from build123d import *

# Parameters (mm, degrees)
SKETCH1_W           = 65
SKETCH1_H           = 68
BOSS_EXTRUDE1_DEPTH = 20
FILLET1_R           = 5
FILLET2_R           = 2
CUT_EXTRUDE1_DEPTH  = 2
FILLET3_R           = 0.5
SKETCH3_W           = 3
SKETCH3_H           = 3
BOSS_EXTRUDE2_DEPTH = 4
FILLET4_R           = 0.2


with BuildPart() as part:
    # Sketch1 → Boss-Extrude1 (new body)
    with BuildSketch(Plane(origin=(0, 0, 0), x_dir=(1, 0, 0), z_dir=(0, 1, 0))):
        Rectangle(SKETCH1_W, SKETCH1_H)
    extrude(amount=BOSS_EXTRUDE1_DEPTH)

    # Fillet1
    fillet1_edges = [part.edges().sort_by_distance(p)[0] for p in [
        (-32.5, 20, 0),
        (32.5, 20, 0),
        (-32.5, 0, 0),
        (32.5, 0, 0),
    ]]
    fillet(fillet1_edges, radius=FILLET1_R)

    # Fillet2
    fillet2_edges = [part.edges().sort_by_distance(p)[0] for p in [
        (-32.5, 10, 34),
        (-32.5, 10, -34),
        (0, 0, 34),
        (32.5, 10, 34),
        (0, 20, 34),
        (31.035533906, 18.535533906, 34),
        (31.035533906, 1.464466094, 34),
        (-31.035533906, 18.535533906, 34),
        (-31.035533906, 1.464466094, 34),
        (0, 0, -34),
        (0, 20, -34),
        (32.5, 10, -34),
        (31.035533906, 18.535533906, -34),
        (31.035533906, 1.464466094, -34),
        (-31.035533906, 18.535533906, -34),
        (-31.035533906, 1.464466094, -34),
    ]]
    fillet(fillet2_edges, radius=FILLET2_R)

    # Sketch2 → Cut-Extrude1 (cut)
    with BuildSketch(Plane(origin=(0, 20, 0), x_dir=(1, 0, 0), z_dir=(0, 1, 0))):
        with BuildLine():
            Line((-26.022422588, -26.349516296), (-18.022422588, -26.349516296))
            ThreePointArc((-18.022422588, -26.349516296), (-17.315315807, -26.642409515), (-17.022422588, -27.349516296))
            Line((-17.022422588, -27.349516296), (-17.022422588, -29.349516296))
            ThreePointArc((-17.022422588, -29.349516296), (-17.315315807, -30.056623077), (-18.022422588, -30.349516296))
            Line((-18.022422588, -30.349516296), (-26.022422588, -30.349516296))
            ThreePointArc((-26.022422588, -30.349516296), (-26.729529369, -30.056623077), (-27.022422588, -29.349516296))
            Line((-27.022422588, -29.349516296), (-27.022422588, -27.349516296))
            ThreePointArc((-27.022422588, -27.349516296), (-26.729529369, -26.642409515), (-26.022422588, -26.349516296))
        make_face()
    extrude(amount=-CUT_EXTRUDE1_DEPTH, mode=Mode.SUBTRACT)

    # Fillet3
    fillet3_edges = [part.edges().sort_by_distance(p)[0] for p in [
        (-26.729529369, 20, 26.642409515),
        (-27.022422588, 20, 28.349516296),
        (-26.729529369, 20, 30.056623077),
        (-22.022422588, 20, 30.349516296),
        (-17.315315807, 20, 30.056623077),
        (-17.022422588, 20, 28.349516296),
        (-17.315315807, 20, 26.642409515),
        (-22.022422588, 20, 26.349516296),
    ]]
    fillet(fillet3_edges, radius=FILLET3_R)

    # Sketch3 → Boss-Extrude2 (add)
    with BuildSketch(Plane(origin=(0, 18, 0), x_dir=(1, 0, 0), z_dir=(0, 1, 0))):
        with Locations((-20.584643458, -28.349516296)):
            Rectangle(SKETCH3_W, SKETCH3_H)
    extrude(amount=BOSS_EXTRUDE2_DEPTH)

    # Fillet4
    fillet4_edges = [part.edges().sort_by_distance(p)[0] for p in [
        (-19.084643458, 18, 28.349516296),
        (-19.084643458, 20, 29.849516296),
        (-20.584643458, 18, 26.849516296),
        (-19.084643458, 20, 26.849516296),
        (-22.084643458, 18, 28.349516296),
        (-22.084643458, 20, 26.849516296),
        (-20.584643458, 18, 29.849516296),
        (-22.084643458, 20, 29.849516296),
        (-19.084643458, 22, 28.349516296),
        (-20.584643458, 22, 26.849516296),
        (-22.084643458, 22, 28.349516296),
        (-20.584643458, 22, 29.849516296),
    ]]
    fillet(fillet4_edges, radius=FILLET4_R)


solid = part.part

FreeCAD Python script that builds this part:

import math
import FreeCAD as App
import Part
import Sketcher

V = App.Vector


def edges_at(feature, points):
    """Names of the edges that pass closest to the given points."""
    edges = feature.Shape.Edges
    near = lambda p: min(range(len(edges)), key=lambda i: edges[i].distToShape(Part.Vertex(*p))[0])
    return sorted({f"Edge{near(p) + 1}" for p in points})

doc = App.newDocument("Part")
body = doc.addObject("PartDesign::Body", "Body")

# Sketch on XZ plane
sketch1 = doc.addObject("Sketcher::SketchObject", "Sketch")
body.addObject(sketch1)
sketch1.AttachmentSupport = (doc.XZ_Plane, [""])
sketch1.MapMode = "FlatFace"
sketch1.addGeometry([
    Part.LineSegment(V(-32, -34, 0), V(-32, 34, 0)),
    Part.LineSegment(V(-32, 34, 0), V(32, 34, 0)),
    Part.LineSegment(V(32, 34, 0), V(32, -34, 0)),
    Part.LineSegment(V(32, -34, 0), V(-32, -34, 0)),
], False)
sketch1.addConstraint([
    Sketcher.Constraint("Coincident", 0, 2, 1, 1),
    Sketcher.Constraint("Coincident", 1, 2, 2, 1),
    Sketcher.Constraint("Coincident", 2, 2, 3, 1),
    Sketcher.Constraint("Coincident", 3, 2, 0, 1),
    Sketcher.Constraint("Vertical", 0),
    Sketcher.Constraint("Horizontal", 1),
    Sketcher.Constraint("Vertical", 2),
    Sketcher.Constraint("Horizontal", 3),
    Sketcher.Constraint("Symmetric", 0, 2, 2, 2, -1, 1),
    Sketcher.Constraint("DistanceX", 1, 1, 1, 2, 65.0),
    Sketcher.Constraint("DistanceY", 0, 1, 0, 2, 68.0),
])
pad1 = doc.addObject("PartDesign::Pad", "Pad")
body.addObject(pad1)
pad1.Profile = sketch1
pad1.Length = 20
pad1.Reversed = True
doc.recompute()

fillet = doc.addObject("PartDesign::Fillet", "Fillet")
body.addObject(fillet)
fillet.Base = (pad1, edges_at(pad1, [
    (-32.5, 20, 0),
    (32.5, 20, 0),
    (-32.5, 0, 0),
    (32.5, 0, 0),
]))
fillet.Radius = 5
doc.recompute()

fillet2 = doc.addObject("PartDesign::Fillet", "Fillet001")
body.addObject(fillet2)
fillet2.Base = (fillet, edges_at(fillet, [
    (-32.5, 10, 34),
    (-32.5, 10, -34),
    (0, 0, 34),
    (32.5, 10, 34),
    (0, 20, 34),
    (31.036, 18.536, 34),
    (31.036, 1.464, 34),
    (-31.036, 18.536, 34),
    (-31.036, 1.464, 34),
    (0, 0, -34),
    (0, 20, -34),
    (32.5, 10, -34),
    (31.036, 18.536, -34),
    (31.036, 1.464, -34),
    (-31.036, 18.536, -34),
    (-31.036, 1.464, -34),
]))
fillet2.Radius = 2

# Sketch on XZ plane
sketch2 = doc.addObject("Sketcher::SketchObject", "Sketch001")
body.addObject(sketch2)
sketch2.AttachmentSupport = (doc.XZ_Plane, [""])
sketch2.MapMode = "FlatFace"
sketch2.AttachmentOffset = App.Placement(V(0, 0, -20), App.Rotation())
sketch2.addGeometry([
    Part.LineSegment(V(-18, 26.3, 0), V(-26, 26.3, 0)),  # 0
    Part.ArcOfCircle(Part.Circle(V(-26, 27.3, 0), V(0, 0, 1), 1), math.radians(-180), math.radians(-90)),  # 1
    Part.LineSegment(V(-27, 27.3, 0), V(-27, 29.3, 0)),  # 2
    Part.ArcOfCircle(Part.Circle(V(-26, 29.3, 0), V(0, 0, 1), 1), math.radians(90), math.radians(180)),  # 3
    Part.LineSegment(V(-26, 30.3, 0), V(-18, 30.3, 0)),  # 4
    Part.ArcOfCircle(Part.Circle(V(-18, 29.3, 0), V(0, 0, 1), 1), math.radians(0), math.radians(90)),  # 5
    Part.LineSegment(V(-17, 29.3, 0), V(-17, 27.3, 0)),  # 6
    Part.ArcOfCircle(Part.Circle(V(-18, 27.3, 0), V(0, 0, 1), 1), math.radians(-90), math.radians(0)),  # 7
], False)
sketch2.addConstraint([
    Sketcher.Constraint("Tangent", 0, 2, 1, 2),
    Sketcher.Constraint("Tangent", 1, 1, 2, 1),
    Sketcher.Constraint("Tangent", 2, 2, 3, 2),
    Sketcher.Constraint("Tangent", 3, 1, 4, 1),
    Sketcher.Constraint("Tangent", 4, 2, 5, 2),
    Sketcher.Constraint("Tangent", 5, 1, 6, 1),
    Sketcher.Constraint("Tangent", 6, 2, 7, 2),
    Sketcher.Constraint("Tangent", 7, 1, 0, 1),
    Sketcher.Constraint("Horizontal", 0),
    Sketcher.Constraint("Vertical", 2),
    Sketcher.Constraint("Horizontal", 4),
    Sketcher.Constraint("Vertical", 6),
    Sketcher.Constraint("Equal", 1, 3),
    Sketcher.Constraint("Equal", 3, 5),
    Sketcher.Constraint("Equal", 5, 7),
    Sketcher.Constraint("Radius", 1, 1.0),
    Sketcher.Constraint("DistanceX", 0, 2, 0, 1, 8.0),
    Sketcher.Constraint("DistanceY", 2, 1, 2, 2, 2.0),
    Sketcher.Constraint("DistanceX", 1, 3, -1, 1, 26.022423),
    Sketcher.Constraint("DistanceY", -1, 1, 1, 3, 27.349516),
])
pocket1 = doc.addObject("PartDesign::Pocket", "Pocket")
body.addObject(pocket1)
pocket1.Profile = sketch2
pocket1.Length = 2
pocket1.Reversed = True
doc.recompute()

fillet3 = doc.addObject("PartDesign::Fillet", "Fillet002")
body.addObject(fillet3)
fillet3.Base = (pocket1, edges_at(pocket1, [
    (-26.73, 20, 26.642),
    (-27.022, 20, 28.35),
    (-26.73, 20, 30.057),
    (-22.022, 20, 30.35),
    (-17.315, 20, 30.057),
    (-17.022, 20, 28.35),
    (-17.315, 20, 26.642),
    (-22.022, 20, 26.35),
]))
fillet3.Radius = 0.5

# Sketch on XZ plane
sketch3 = doc.addObject("Sketcher::SketchObject", "Sketch002")
body.addObject(sketch3)
sketch3.AttachmentSupport = (doc.XZ_Plane, [""])
sketch3.MapMode = "FlatFace"
sketch3.AttachmentOffset = App.Placement(V(0, 0, -18), App.Rotation())
sketch3.addGeometry([
    Part.LineSegment(V(-22.1, 26.8, 0), V(-22.1, 29.8, 0)),
    Part.LineSegment(V(-22.1, 29.8, 0), V(-19.1, 29.8, 0)),
    Part.LineSegment(V(-19.1, 29.8, 0), V(-19.1, 26.8, 0)),
    Part.LineSegment(V(-19.1, 26.8, 0), V(-22.1, 26.8, 0)),
], False)
sketch3.addConstraint([
    Sketcher.Constraint("Coincident", 0, 2, 1, 1),
    Sketcher.Constraint("Coincident", 1, 2, 2, 1),
    Sketcher.Constraint("Coincident", 2, 2, 3, 1),
    Sketcher.Constraint("Coincident", 3, 2, 0, 1),
    Sketcher.Constraint("Vertical", 0),
    Sketcher.Constraint("Horizontal", 1),
    Sketcher.Constraint("Vertical", 2),
    Sketcher.Constraint("Horizontal", 3),
    Sketcher.Constraint("Equal", 3, 0),
    Sketcher.Constraint("DistanceX", 1, 1, 1, 2, 3.0),
    Sketcher.Constraint("DistanceX", 0, 2, -1, 1, 22.084643),
    Sketcher.Constraint("DistanceY", -1, 1, 0, 2, 29.849516),
])
pad2 = doc.addObject("PartDesign::Pad", "Pad001")
body.addObject(pad2)
pad2.Profile = sketch3
pad2.Length = 4
pad2.Reversed = True
doc.recompute()

fillet4 = doc.addObject("PartDesign::Fillet", "Fillet003")
body.addObject(fillet4)
fillet4.Base = (pad2, edges_at(pad2, [
    (-19.085, 18, 28.35),
    (-19.085, 20, 29.85),
    (-20.585, 18, 26.85),
    (-19.085, 20, 26.85),
    (-22.085, 18, 28.35),
    (-22.085, 20, 26.85),
    (-20.585, 18, 29.85),
    (-22.085, 20, 29.85),
    (-19.085, 22, 28.35),
    (-20.585, 22, 26.85),
    (-22.085, 22, 28.35),
    (-20.585, 22, 29.85),
]))
fillet4.Radius = 0.2

doc.recompute()
